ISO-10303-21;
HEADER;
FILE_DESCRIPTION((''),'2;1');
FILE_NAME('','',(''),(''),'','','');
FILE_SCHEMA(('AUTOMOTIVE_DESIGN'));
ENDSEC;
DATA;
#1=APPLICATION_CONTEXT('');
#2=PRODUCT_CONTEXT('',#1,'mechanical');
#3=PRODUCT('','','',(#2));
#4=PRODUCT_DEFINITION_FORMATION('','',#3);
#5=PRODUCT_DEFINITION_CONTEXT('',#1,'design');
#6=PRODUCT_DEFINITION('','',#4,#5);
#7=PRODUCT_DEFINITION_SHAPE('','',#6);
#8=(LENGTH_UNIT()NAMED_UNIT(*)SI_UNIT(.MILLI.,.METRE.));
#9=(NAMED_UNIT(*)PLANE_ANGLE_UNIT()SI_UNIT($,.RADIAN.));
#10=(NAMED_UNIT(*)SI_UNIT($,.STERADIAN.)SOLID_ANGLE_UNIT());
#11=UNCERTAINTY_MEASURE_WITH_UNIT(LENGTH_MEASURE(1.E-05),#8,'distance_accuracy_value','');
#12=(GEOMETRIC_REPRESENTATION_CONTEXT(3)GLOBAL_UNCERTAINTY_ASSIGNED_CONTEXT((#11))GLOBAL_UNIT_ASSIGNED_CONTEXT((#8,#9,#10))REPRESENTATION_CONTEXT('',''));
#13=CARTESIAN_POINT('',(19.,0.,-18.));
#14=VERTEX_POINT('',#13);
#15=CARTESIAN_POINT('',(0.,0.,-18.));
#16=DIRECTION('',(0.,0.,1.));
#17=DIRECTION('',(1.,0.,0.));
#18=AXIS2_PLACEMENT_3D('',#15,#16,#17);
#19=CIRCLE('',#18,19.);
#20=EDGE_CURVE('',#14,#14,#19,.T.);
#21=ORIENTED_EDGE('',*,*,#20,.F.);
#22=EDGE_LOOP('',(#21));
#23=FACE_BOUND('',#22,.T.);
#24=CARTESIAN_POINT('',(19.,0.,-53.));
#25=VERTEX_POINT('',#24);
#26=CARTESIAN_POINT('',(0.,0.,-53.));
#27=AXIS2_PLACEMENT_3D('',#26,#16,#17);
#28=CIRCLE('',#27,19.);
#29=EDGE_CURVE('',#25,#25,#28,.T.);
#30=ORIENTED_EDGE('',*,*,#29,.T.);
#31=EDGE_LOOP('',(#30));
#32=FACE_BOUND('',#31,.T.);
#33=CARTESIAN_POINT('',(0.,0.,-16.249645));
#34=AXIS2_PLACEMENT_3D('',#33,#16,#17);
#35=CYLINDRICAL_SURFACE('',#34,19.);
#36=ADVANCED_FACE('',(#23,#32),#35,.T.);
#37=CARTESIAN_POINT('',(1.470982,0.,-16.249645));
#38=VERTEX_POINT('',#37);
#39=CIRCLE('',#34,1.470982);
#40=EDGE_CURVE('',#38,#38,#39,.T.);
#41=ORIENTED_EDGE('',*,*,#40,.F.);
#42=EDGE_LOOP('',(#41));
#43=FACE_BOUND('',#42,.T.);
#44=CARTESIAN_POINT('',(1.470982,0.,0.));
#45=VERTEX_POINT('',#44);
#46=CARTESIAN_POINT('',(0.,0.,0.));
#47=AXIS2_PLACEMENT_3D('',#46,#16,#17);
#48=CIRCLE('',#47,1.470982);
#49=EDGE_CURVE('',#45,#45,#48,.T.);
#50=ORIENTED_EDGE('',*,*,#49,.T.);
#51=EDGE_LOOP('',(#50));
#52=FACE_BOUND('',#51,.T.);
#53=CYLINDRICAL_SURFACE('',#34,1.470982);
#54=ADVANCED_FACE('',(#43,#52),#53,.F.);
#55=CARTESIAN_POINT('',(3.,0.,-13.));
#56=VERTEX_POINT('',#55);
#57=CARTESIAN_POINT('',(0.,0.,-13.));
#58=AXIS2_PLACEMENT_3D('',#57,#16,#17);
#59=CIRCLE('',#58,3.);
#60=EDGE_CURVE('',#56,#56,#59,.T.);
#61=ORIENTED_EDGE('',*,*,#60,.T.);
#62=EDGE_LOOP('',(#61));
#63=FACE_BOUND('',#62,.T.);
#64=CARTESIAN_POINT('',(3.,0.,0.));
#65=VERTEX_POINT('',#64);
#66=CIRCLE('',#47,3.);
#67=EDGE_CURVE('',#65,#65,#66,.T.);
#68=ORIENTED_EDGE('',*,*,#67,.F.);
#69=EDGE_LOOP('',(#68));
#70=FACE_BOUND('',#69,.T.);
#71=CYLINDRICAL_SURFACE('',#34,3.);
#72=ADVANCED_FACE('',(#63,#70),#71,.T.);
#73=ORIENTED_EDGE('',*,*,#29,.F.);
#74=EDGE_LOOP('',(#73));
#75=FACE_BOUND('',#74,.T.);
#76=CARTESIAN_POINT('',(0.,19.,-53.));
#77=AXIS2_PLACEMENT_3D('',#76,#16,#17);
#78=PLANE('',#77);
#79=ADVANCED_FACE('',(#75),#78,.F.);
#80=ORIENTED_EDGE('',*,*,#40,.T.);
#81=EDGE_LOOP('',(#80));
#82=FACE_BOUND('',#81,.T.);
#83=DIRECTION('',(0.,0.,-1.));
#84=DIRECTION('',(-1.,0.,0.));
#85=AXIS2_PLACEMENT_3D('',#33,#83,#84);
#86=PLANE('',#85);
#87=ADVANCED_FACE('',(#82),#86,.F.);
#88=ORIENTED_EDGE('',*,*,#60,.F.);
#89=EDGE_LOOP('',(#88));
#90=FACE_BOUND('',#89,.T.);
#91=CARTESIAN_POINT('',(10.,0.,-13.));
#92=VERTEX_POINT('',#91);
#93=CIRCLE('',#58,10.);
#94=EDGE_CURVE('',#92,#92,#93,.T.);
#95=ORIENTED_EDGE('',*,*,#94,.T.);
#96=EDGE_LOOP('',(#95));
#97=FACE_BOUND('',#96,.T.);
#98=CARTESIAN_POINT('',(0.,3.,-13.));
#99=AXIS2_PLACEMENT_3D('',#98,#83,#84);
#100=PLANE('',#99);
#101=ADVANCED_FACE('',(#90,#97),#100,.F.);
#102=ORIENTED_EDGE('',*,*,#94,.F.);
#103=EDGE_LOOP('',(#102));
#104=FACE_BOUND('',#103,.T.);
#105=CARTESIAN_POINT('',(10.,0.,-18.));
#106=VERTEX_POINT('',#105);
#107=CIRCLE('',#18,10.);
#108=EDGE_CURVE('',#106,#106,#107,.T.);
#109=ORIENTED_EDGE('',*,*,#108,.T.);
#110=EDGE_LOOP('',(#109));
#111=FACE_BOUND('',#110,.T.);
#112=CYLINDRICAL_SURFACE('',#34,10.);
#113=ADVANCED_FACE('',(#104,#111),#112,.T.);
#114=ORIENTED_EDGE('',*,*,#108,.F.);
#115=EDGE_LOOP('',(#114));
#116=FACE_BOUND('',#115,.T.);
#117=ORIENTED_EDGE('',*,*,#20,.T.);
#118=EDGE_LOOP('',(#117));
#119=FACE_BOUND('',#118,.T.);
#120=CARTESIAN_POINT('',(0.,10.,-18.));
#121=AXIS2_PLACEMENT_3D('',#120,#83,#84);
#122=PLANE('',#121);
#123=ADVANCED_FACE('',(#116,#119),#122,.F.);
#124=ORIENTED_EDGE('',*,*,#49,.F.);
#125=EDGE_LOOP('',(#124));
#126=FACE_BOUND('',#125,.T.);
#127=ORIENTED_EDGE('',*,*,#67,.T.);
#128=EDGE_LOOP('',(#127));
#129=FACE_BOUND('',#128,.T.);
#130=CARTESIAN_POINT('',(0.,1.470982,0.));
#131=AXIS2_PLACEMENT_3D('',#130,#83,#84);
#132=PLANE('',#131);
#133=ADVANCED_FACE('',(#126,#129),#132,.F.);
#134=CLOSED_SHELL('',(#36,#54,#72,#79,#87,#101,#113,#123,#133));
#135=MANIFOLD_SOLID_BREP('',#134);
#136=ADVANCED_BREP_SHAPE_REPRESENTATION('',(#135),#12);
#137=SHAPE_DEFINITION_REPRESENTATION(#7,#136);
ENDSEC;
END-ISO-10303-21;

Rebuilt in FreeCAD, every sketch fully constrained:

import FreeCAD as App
import Part
import Sketcher

V = App.Vector
Q = App.Units.Quantity


def add_polygon(sketch, points):
    """Adds a closed chain of lines whose ends are joined by coincident constraints."""
    first, n = sketch.GeometryCount, len(points)
    for a, b in zip(points, points[1:] + points[:1]):
        sketch.addGeometry(Part.LineSegment(App.Vector(*a, 0), App.Vector(*b, 0)), False)
    for i in range(n):
        sketch.addConstraint(Sketcher.Constraint("Coincident", first + i, 2, first + (i + 1) % n, 1))

doc = App.newDocument("Part")
body = doc.addObject("PartDesign::Body", "Body")

sketch1 = body.newObject("Sketcher::SketchObject", "Sketch")
sketch1.AttachmentSupport = (doc.getObject("YZ_Plane"), [""])
sketch1.MapMode = "FlatFace"
add_polygon(sketch1, [(3, 0), (1.5, 0), (1.5, -16.2), (0, -16.2), (0, -53), (19, -53), (19, -18), (10, -18), (10, -13), (3, -13)])
sketch1.addConstraint(Sketcher.Constraint("Horizontal", 0))
sketch1.addConstraint(Sketcher.Constraint("Vertical", 1))
sketch1.addConstraint(Sketcher.Constraint("Horizontal", 2))
sketch1.addConstraint(Sketcher.Constraint("Vertical", 3))
sketch1.addConstraint(Sketcher.Constraint("Horizontal", 4))
sketch1.addConstraint(Sketcher.Constraint("Vertical", 5))
sketch1.addConstraint(Sketcher.Constraint("Horizontal", 6))
sketch1.addConstraint(Sketcher.Constraint("Vertical", 7))
sketch1.addConstraint(Sketcher.Constraint("Horizontal", 8))
sketch1.addConstraint(Sketcher.Constraint("Vertical", 9))
sketch1.addConstraint(Sketcher.Constraint("PointOnObject", 0, 2, -1))
sketch1.addConstraint(Sketcher.Constraint("PointOnObject", 2, 2, -2))
sketch1.addConstraint(Sketcher.Constraint("DistanceX", 4, 1, 4, 2, Q("19 mm")))
sketch1.addConstraint(Sketcher.Constraint("DistanceX", 6, 2, 6, 1, Q("9 mm")))
sketch1.addConstraint(Sketcher.Constraint("DistanceX", 8, 2, 8, 1, Q("7 mm")))
sketch1.addConstraint(Sketcher.Constraint("DistanceY", 5, 1, 5, 2, Q("35 mm")))
sketch1.addConstraint(Sketcher.Constraint("DistanceY", 7, 1, 7, 2, Q("5 mm")))
sketch1.addConstraint(Sketcher.Constraint("DistanceY", 9, 1, 9, 2, Q("13 mm")))
sketch1.addConstraint(Sketcher.Constraint("DistanceX", 0, 2, 0, 1, Q("1.529018 mm")))
sketch1.addConstraint(Sketcher.Constraint("DistanceY", 1, 2, 1, 1, Q("16.249645 mm")))
revolution = body.newObject("PartDesign::Revolution", "Revolution")
revolution.Profile = sketch1
revolution.ReferenceAxis = (sketch1, ["V_Axis"])
revolution.Angle = 360

doc.recompute()
